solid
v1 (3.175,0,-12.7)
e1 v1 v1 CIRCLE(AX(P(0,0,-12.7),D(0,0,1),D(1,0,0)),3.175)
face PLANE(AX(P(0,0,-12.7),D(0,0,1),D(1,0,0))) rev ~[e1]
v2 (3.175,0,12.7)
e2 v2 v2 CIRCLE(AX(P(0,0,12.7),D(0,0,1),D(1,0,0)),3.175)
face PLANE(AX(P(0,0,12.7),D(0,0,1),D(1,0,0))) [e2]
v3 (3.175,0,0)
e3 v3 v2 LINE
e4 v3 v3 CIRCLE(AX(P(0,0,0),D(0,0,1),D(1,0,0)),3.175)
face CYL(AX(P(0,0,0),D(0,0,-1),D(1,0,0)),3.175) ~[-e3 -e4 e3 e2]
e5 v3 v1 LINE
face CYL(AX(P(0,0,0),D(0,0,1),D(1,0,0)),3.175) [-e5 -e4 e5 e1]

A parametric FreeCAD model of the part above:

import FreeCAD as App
import Part
import Sketcher

V = App.Vector
Q = App.Units.Quantity

doc = App.newDocument("Part")
body = doc.addObject("PartDesign::Body", "Body")

# Sketch on XY plane
sketch1 = doc.addObject("Sketcher::SketchObject", "Sketch")
body.addObject(sketch1)
sketch1.AttachmentSupport = (doc.XY_Plane, [""])
sketch1.MapMode = "FlatFace"
sketch1.addGeometry(Part.Circle(V(0, 0, 0), V(0, 0, 1), 3.2), False)
sketch1.addConstraint(Sketcher.Constraint("Coincident", 0, 3, -1, 1))
sketch1.addConstraint(Sketcher.Constraint("Diameter", 0, Q("0.25 in")))
pad1 = doc.addObject("PartDesign::Pad", "Pad")
body.addObject(pad1)
pad1.Profile = sketch1
pad1.Length = Q("1 in")
pad1.Midplane = True

doc.recompute()
